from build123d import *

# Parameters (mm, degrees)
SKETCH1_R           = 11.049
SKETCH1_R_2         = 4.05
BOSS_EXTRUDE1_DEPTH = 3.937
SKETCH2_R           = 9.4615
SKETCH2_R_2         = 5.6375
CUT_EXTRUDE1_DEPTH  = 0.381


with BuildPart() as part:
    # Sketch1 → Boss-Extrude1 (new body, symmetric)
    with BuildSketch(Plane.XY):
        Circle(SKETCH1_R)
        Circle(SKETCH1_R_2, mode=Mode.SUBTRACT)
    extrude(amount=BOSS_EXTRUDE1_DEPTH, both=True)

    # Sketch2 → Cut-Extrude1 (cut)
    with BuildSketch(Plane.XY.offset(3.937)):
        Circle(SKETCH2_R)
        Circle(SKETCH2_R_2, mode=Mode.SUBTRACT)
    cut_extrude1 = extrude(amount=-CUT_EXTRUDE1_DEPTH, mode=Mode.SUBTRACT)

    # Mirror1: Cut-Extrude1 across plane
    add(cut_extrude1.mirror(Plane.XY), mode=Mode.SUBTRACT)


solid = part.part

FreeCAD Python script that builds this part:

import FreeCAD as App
import Part
import Sketcher

V = App.Vector
Q = App.Units.Quantity

doc = App.newDocument("Part")
body = doc.addObject("PartDesign::Body", "Body")

# Sketch on XY plane
sketch1 = body.newObject("Sketcher::SketchObject", "Sketch")
sketch1.AttachmentSupport = (doc.getObject("XY_Plane"), [""])
sketch1.MapMode = "FlatFace"
sketch1.addGeometry(Part.Circle(V(0, 0, 0), V(0, 0, 1), 11), False)
sketch1.addGeometry(Part.Circle(V(0, 0, 0), V(0, 0, 1), 4), False)
sketch1.addConstraint(Sketcher.Constraint("Coincident", 0, 3, -1, 1))
sketch1.addConstraint(Sketcher.Constraint("Coincident", 1, 3, -1, 1))
sketch1.addConstraint(Sketcher.Constraint("Diameter", 0, Q("0.87 in")))
sketch1.addConstraint(Sketcher.Constraint("Diameter", 1, Q("8.1 mm")))
pad1 = body.newObject("PartDesign::Pad", "Pad")
pad1.Profile = sketch1
pad1.Length = Q("0.31 in")
pad1.Midplane = True

# Sketch on XY plane
sketch2 = body.newObject("Sketcher::SketchObject", "Sketch001")
sketch2.AttachmentSupport = (doc.getObject("XY_Plane"), [""])
sketch2.MapMode = "FlatFace"
sketch2.AttachmentOffset = App.Placement(V(0, 0, 0.155 * 25.4), App.Rotation())
sketch2.addGeometry(Part.Circle(V(0, 0, 0), V(0, 0, 1), 9), False)
sketch2.addGeometry(Part.Circle(V(0, 0, 0), V(0, 0, 1), 6), False)
sketch2.addConstraint(Sketcher.Constraint("Coincident", 0, 3, -1, 1))
sketch2.addConstraint(Sketcher.Constraint("Coincident", 1, 3, -1, 1))
sketch2.addConstraint(Sketcher.Constraint("Diameter", 0, Q("0.745 in")))
sketch2.addConstraint(Sketcher.Constraint("Diameter", 1, Q("11.275 mm")))
pocket1 = body.newObject("PartDesign::Pocket", "Pocket")
pocket1.Profile = sketch2
pocket1.Length = Q("0.015 in")
doc.recompute()

mirrored = body.newObject("PartDesign::Mirrored", "Mirrored")
mirrored.Originals = [pocket1]
mirrored.MirrorPlane = (doc.getObject("XY_Plane"), [""])
body.Tip = mirrored

doc.recompute()
